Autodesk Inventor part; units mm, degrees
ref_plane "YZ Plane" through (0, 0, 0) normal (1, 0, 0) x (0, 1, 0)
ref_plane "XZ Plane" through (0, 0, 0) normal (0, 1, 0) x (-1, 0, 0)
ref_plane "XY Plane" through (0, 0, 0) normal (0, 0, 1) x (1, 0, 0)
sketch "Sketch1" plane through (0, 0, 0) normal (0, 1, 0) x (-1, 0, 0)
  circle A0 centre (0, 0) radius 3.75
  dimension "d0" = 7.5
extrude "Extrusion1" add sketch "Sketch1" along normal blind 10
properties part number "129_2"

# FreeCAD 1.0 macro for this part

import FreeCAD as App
import Part
import Sketcher

doc = App.newDocument("Part")
body = doc.addObject("PartDesign::Body", "Body")

sketch1 = doc.addObject("Sketcher::SketchObject", "Sketch")
body.addObject(sketch1)
sketch1.AttachmentSupport = (doc.XZ_Plane, [""])
sketch1.MapMode = "FlatFace"
sketch1.addGeometry(Part.Circle(App.Vector(0, 0, 0), App.Vector(0, 0, 1), 3.8), False)
sketch1.addConstraint([
    Sketcher.Constraint("Coincident", 0, 3, -1, 1),
    Sketcher.Constraint("Diameter", 0, 7.5),
])
pad1 = doc.addObject("PartDesign::Pad", "Pad")
body.addObject(pad1)
pad1.Profile = sketch1
pad1.Length = 10
pad1.Reversed = True

doc.recompute()
